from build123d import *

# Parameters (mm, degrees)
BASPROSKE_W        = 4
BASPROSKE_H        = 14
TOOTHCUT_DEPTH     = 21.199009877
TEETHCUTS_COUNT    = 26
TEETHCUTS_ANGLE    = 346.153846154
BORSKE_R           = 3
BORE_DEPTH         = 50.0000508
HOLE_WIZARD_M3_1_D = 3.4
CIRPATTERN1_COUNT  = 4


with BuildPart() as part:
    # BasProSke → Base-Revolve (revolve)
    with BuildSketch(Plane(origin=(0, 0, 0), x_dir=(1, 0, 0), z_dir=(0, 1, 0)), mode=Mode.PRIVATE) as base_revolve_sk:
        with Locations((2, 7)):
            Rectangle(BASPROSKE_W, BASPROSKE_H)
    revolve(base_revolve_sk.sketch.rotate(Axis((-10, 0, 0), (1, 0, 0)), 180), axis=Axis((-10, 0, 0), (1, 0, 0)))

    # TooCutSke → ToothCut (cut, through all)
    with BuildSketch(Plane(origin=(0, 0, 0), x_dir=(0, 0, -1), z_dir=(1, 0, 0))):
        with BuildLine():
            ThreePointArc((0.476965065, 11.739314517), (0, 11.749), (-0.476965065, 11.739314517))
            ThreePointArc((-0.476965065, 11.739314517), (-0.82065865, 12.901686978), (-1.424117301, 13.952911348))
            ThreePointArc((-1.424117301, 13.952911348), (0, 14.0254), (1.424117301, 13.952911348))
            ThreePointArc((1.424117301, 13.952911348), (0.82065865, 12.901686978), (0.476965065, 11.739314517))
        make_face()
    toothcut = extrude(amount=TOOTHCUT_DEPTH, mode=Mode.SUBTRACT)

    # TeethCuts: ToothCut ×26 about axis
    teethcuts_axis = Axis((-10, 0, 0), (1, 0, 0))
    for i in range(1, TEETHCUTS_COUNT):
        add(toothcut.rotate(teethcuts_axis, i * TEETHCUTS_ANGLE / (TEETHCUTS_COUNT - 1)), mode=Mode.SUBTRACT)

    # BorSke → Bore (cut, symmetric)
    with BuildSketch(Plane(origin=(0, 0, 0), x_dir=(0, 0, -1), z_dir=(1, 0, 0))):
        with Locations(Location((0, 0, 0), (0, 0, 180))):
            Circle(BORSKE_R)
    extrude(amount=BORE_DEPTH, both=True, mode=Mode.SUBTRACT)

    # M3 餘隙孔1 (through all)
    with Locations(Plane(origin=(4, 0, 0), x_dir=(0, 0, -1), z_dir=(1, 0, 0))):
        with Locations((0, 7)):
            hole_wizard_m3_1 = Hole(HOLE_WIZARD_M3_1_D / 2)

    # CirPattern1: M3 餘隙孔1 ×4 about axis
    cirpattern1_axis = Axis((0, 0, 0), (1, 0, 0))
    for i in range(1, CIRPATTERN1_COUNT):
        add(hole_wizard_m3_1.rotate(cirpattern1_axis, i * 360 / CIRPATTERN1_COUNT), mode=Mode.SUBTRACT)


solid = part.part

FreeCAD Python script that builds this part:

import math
import FreeCAD as App
import Part
import Sketcher
Q = App.Units.Quantity


def add_polygon(sketch, points):
    """Adds a closed chain of lines whose ends are joined by coincident constraints."""
    first, n = sketch.GeometryCount, len(points)
    for a, b in zip(points, points[1:] + points[:1]):
        sketch.addGeometry(Part.LineSegment(App.Vector(*a, 0), App.Vector(*b, 0)), False)
    for i in range(n):
        sketch.addConstraint(Sketcher.Constraint("Coincident", first + i, 2, first + (i + 1) % n, 1))

doc = App.newDocument("Part")
body = doc.addObject("PartDesign::Body", "Body")

sketch1 = body.newObject("Sketcher::SketchObject", "Sketch")
sketch1.AttachmentSupport = (doc.getObject("XZ_Plane"), [""])
sketch1.MapMode = "FlatFace"
add_polygon(sketch1, [(0, -14), (0, 0), (4, 0), (4, -14)])
sketch1.addConstraint(Sketcher.Constraint("Vertical", 0))
sketch1.addConstraint(Sketcher.Constraint("Horizontal", 1))
sketch1.addConstraint(Sketcher.Constraint("Vertical", 2))
sketch1.addConstraint(Sketcher.Constraint("Horizontal", 3))
sketch1.addConstraint(Sketcher.Constraint("Coincident", 0, 2, -1, 1))
sketch1.addConstraint(Sketcher.Constraint("DistanceX", 1, 1, 1, 2, Q("4 mm")))
sketch1.addConstraint(Sketcher.Constraint("DistanceY", 0, 1, 0, 2, Q("14 mm")))
revolution = body.newObject("PartDesign::Revolution", "Revolution")
revolution.Profile = sketch1
revolution.ReferenceAxis = (sketch1, ["H_Axis"])
revolution.Angle = 360

sketch2 = body.newObject("Sketcher::SketchObject", "Sketch001")
sketch2.AttachmentSupport = (doc.getObject("YZ_Plane"), [""])
sketch2.MapMode = "FlatFace"
sketch2.addGeometry(Part.ArcOfCircle(Part.Circle(App.Vector(0, 0, 0), App.Vector(0, 0, 1), 11.7), math.radians(-2.33), math.radians(2.33)), False)
sketch2.addGeometry(Part.ArcOfCircle(Part.Circle(App.Vector(10.9, -5.6, 0), App.Vector(0, 0, 1), 5.2), math.radians(53), math.radians(80)), False)
sketch2.addGeometry(Part.ArcOfCircle(Part.Circle(App.Vector(0, 0, 0), App.Vector(0, 0, 1), 14), math.radians(-5.83), math.radians(5.83)), False)
sketch2.addGeometry(Part.ArcOfCircle(Part.Circle(App.Vector(10.9, 5.6, 0), App.Vector(0, 0, 1), 5.2), math.radians(-80), math.radians(-53)), False)
sketch2.addConstraint(Sketcher.Constraint("Coincident", 0, 1, 1, 2))
sketch2.addConstraint(Sketcher.Constraint("Coincident", 1, 1, 2, 1))
sketch2.addConstraint(Sketcher.Constraint("Coincident", 2, 2, 3, 2))
sketch2.addConstraint(Sketcher.Constraint("Coincident", 3, 1, 0, 2))
sketch2.addConstraint(Sketcher.Constraint("Coincident", 0, 3, -1, 1))
sketch2.addConstraint(Sketcher.Constraint("Coincident", 2, 3, -1, 1))
sketch2.addConstraint(Sketcher.Constraint("Equal", 1, 3))
sketch2.addConstraint(Sketcher.Constraint("Symmetric", 1, 3, 3, 3, -1))
sketch2.addConstraint(Sketcher.Constraint("Radius", 1, Q("5.2 mm")))
sketch2.addConstraint(Sketcher.Constraint("Radius", 0, Q("11.749 mm")))
sketch2.addConstraint(Sketcher.Constraint("Radius", 2, Q("14.0254 mm")))
sketch2.addConstraint(Sketcher.Constraint("DistanceY", 1, 3, -1, 1, Q("5.60141 mm")))
sketch2.addConstraint(Sketcher.Constraint("DistanceX", -1, 1, 1, 1, Q("13.952911 mm")))
pocket1 = body.newObject("PartDesign::Pocket", "Pocket")
pocket1.Profile = sketch2
pocket1.Type = "ThroughAll"
pocket1.Reversed = True
doc.recompute()

polarpattern = body.newObject("PartDesign::PolarPattern", "PolarPattern")
polarpattern.Originals = [pocket1]
polarpattern.Axis = (doc.getObject("X_Axis"), [""])
polarpattern.Angle = 360
polarpattern.Occurrences = 26
body.Tip = polarpattern

sketch3 = body.newObject("Sketcher::SketchObject", "Sketch002")
sketch3.AttachmentSupport = (doc.getObject("YZ_Plane"), [""])
sketch3.MapMode = "FlatFace"
sketch3.addGeometry(Part.Circle(App.Vector(0, 0, 0), App.Vector(0, 0, 1), 3), False)
sketch3.addConstraint(Sketcher.Constraint("Coincident", 0, 3, -1, 1))
sketch3.addConstraint(Sketcher.Constraint("Diameter", 0, Q("6 mm")))
pocket2 = body.newObject("PartDesign::Pocket", "Pocket001")
pocket2.Profile = sketch3
pocket2.Length = 100.000102
pocket2.Midplane = True

sketch4 = body.newObject("Sketcher::SketchObject", "Sketch003")
sketch4.AttachmentSupport = (doc.getObject("YZ_Plane"), [""])
sketch4.MapMode = "FlatFace"
sketch4.AttachmentOffset = App.Placement(App.Vector(0, 0, 4), App.Rotation())
sketch4.addGeometry(Part.Circle(App.Vector(7, 0, 0), App.Vector(0, 0, 1), 1.7), False)
sketch4.addConstraint(Sketcher.Constraint("PointOnObject", 0, 3, -1))
sketch4.addConstraint(Sketcher.Constraint("Diameter", 0, Q("3.4 mm")))
sketch4.addConstraint(Sketcher.Constraint("DistanceX", -1, 1, 0, 3, Q("7 mm")))
doc.recompute()
hole = body.newObject("PartDesign::Hole", "Hole")
hole.Profile = sketch4
hole.ThreadType = "None"
hole.Diameter = 3.4
hole.DepthType = "ThroughAll"
doc.recompute()

polarpattern2 = body.newObject("PartDesign::PolarPattern", "PolarPattern001")
polarpattern2.Originals = [hole]
polarpattern2.Axis = (doc.getObject("X_Axis"), [""])
polarpattern2.Angle = 360
polarpattern2.Occurrences = 4
body.Tip = polarpattern2

doc.recompute()
